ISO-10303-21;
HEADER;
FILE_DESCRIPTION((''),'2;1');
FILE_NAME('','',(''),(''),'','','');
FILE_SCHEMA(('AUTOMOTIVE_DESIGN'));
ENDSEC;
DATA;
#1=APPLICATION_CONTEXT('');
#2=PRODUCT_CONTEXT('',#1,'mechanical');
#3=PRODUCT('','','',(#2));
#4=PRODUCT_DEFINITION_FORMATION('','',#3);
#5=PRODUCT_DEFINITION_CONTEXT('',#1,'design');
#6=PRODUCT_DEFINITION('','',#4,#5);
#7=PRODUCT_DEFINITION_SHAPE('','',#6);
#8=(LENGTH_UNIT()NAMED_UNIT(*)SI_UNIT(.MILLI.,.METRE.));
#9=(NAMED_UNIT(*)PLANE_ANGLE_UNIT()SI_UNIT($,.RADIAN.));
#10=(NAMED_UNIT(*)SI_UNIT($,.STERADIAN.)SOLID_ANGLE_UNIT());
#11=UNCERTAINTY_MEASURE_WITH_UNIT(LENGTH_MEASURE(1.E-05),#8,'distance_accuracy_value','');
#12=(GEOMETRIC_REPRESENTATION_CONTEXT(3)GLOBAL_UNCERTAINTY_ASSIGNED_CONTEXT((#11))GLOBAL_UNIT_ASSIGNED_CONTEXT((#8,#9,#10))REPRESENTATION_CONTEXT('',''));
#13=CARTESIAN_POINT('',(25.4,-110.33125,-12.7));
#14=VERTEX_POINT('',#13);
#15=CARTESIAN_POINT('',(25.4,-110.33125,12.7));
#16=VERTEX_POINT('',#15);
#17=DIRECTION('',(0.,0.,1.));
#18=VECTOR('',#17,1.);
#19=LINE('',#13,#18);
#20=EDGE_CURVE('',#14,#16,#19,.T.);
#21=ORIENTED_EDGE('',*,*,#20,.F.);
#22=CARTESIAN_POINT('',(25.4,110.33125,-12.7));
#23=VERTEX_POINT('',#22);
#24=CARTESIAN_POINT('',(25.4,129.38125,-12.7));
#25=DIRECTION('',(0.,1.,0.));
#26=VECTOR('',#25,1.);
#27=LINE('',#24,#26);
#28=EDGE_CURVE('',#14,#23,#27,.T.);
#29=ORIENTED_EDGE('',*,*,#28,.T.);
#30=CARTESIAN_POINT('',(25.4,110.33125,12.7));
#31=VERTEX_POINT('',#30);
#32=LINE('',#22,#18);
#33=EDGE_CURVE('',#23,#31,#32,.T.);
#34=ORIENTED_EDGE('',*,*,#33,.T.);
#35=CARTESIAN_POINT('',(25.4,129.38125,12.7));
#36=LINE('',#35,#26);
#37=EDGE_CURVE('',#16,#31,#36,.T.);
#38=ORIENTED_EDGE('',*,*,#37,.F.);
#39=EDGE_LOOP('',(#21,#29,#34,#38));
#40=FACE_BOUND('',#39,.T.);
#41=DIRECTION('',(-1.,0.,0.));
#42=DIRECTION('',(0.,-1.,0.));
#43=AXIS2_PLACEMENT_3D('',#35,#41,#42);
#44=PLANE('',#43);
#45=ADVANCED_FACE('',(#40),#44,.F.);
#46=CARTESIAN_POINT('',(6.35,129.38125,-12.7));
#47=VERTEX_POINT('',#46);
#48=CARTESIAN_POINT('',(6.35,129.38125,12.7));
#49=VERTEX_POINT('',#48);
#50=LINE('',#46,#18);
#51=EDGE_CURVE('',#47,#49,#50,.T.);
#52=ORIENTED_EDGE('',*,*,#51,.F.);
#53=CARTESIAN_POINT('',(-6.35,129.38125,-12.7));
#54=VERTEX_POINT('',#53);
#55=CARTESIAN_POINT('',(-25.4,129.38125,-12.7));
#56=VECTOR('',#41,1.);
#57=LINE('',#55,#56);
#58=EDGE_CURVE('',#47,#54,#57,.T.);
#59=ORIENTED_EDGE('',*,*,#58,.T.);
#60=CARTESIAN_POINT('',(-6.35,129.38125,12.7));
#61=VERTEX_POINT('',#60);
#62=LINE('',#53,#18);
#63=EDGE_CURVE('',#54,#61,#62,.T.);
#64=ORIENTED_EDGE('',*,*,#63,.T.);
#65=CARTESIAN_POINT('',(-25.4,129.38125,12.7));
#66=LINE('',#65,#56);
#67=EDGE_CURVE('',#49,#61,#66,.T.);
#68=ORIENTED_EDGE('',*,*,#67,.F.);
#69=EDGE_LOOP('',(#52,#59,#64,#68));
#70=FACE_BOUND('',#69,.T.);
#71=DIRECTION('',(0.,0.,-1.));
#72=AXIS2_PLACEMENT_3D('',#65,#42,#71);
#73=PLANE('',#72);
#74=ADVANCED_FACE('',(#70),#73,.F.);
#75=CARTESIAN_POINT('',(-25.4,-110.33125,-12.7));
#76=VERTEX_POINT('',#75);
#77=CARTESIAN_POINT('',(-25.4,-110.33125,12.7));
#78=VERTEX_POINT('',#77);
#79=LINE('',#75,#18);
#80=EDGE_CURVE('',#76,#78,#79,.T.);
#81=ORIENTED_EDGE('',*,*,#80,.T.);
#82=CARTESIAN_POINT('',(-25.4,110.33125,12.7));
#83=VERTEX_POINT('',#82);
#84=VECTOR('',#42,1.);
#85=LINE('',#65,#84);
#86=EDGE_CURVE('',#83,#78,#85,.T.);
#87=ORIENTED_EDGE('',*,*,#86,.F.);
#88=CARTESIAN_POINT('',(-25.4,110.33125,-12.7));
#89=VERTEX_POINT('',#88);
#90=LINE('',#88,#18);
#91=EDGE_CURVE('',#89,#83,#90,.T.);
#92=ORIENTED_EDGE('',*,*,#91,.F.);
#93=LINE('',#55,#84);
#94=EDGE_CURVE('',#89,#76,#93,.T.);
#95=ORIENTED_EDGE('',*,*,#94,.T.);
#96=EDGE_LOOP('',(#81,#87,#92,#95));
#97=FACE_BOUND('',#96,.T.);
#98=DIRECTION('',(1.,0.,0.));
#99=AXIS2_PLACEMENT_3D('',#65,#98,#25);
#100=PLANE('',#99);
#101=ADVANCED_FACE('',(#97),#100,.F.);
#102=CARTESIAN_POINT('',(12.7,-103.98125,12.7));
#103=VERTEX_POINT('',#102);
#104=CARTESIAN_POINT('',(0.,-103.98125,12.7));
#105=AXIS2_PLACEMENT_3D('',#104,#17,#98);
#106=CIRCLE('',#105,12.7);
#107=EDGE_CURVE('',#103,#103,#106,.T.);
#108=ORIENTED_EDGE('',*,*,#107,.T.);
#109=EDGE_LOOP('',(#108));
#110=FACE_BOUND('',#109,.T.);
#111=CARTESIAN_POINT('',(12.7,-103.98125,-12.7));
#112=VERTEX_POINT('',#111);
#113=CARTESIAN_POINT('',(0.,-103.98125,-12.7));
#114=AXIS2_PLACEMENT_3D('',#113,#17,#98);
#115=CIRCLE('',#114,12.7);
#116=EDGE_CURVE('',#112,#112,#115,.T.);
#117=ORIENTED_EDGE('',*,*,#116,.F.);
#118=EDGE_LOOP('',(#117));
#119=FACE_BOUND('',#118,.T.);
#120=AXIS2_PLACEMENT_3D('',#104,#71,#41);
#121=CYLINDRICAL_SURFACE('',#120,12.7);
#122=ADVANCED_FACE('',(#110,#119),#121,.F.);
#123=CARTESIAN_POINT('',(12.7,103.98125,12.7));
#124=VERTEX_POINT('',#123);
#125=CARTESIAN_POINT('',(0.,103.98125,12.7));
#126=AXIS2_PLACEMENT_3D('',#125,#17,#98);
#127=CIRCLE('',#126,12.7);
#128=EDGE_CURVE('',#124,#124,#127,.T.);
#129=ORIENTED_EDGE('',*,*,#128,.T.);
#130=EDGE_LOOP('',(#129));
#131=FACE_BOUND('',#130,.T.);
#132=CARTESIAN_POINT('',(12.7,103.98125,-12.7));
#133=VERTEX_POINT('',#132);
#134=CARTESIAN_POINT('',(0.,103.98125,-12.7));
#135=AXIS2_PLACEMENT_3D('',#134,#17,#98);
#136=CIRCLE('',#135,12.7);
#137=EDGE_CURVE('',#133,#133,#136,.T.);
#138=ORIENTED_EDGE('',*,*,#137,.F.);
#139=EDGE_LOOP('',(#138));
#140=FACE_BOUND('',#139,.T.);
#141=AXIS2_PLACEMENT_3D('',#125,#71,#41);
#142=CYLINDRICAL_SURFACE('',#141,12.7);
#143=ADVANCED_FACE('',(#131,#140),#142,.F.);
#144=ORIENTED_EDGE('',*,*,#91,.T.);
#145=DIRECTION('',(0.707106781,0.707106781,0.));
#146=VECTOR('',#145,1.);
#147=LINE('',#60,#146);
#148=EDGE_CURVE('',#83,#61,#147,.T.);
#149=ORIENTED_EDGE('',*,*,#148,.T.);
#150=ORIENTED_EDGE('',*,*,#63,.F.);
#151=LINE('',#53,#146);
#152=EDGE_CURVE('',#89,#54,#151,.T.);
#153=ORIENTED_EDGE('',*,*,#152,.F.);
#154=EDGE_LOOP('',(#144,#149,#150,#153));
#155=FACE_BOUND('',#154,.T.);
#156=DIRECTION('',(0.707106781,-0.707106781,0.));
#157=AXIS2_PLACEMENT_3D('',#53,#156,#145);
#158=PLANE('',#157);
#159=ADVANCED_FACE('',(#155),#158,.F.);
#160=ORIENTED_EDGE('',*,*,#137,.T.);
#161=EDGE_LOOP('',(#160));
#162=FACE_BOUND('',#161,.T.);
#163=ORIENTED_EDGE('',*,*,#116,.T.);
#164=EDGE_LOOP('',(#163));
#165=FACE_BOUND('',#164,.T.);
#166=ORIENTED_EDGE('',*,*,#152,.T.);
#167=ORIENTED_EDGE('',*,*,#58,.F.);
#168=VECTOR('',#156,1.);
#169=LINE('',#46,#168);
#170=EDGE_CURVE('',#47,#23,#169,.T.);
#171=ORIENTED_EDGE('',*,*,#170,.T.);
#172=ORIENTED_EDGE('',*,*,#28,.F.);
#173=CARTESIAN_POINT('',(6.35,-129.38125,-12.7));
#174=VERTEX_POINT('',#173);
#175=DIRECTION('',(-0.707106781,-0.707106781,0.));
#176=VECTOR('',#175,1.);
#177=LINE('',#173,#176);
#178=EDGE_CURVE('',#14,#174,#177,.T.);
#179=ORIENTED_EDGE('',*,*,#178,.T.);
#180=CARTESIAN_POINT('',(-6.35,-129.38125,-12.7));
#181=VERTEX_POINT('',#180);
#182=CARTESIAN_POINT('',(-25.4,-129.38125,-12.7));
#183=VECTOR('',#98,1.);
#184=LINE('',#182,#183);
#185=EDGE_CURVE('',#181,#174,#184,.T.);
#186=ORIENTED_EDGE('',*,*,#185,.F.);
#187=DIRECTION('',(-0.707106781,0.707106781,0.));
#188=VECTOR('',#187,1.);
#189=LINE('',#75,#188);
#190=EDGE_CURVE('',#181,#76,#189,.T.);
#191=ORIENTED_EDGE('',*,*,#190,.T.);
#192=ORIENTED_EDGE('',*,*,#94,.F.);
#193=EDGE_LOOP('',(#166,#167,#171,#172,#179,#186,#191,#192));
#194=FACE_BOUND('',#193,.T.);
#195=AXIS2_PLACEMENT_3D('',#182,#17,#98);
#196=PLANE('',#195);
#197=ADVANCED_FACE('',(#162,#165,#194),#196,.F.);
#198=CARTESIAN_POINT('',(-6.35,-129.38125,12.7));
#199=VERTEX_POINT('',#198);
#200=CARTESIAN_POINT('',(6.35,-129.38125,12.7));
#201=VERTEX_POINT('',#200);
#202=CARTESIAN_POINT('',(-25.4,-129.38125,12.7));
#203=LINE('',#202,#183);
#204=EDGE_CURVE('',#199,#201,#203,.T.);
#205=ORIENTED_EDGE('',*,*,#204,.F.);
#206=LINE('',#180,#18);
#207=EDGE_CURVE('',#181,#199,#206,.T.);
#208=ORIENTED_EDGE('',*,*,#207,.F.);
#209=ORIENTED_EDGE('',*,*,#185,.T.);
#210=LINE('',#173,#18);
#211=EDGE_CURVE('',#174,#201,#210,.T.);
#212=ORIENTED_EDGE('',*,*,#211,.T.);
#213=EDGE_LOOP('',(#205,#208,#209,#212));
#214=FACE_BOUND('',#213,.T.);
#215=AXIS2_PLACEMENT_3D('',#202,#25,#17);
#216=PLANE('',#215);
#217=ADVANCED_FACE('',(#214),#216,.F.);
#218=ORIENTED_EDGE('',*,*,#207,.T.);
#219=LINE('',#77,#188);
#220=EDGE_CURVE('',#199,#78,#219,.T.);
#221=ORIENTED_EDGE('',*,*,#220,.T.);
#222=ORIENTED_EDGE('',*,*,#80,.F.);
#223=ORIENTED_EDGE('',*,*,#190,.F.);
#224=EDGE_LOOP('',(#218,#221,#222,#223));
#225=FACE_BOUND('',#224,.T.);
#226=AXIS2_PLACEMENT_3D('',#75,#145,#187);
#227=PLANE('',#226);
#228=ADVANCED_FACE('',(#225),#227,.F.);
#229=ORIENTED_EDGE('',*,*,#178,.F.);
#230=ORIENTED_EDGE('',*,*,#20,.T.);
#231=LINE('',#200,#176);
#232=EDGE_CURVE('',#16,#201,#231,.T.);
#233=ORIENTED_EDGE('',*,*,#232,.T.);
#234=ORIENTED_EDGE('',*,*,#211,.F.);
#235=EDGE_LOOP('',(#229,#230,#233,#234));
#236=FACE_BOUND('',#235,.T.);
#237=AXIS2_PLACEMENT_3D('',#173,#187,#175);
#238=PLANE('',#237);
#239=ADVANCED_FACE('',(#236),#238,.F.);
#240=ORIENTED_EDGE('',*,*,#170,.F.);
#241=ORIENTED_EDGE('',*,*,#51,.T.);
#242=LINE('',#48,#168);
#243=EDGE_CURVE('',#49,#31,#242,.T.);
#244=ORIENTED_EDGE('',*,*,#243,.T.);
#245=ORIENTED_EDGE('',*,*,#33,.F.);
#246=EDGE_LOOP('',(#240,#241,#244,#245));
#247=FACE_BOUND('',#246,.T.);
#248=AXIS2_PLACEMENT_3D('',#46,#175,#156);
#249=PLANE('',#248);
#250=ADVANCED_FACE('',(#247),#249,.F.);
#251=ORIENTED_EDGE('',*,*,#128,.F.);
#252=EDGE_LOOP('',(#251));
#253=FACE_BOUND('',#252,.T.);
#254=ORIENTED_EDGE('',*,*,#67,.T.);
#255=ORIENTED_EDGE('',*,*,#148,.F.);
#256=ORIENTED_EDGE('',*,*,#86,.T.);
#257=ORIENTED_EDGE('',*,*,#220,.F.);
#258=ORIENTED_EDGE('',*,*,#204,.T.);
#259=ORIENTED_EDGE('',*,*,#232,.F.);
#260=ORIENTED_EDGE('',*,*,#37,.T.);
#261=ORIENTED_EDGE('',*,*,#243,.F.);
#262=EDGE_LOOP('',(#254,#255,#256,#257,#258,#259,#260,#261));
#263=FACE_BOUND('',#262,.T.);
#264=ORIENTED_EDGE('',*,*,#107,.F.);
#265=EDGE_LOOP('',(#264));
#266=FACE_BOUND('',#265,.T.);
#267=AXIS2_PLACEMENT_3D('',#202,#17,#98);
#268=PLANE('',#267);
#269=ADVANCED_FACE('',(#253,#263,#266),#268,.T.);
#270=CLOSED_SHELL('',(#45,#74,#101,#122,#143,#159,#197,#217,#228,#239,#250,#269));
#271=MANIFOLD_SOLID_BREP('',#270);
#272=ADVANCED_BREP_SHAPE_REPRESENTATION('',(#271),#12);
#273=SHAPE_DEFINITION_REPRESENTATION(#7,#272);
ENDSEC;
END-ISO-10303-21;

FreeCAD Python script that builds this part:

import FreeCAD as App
import Part
import Sketcher
Q = App.Units.Quantity


def add_polygon(sketch, points):
    """Adds a closed chain of lines whose ends are joined by coincident constraints."""
    first, n = sketch.GeometryCount, len(points)
    for a, b in zip(points, points[1:] + points[:1]):
        sketch.addGeometry(Part.LineSegment(App.Vector(*a, 0), App.Vector(*b, 0)), False)
    for i in range(n):
        sketch.addConstraint(Sketcher.Constraint("Coincident", first + i, 2, first + (i + 1) % n, 1))

doc = App.newDocument("Part")
body = doc.addObject("PartDesign::Body", "Body")

# Sketch on XY plane
sketch1 = body.newObject("Sketcher::SketchObject", "Sketch")
sketch1.AttachmentSupport = (doc.getObject("XY_Plane"), [""])
sketch1.MapMode = "FlatFace"
add_polygon(sketch1, [(-25, 129), (-25, -129), (25, -129), (25, 129)])  # lines 0-3
sketch1.addGeometry(Part.Circle(App.Vector(0, -104, 0), App.Vector(0, 0, 1), 13), False)  # 4
sketch1.addGeometry(Part.Circle(App.Vector(0, 104, 0), App.Vector(0, 0, 1), 13), False)  # 5
sketch1.addConstraint([
    Sketcher.Constraint("Vertical", 0),
    Sketcher.Constraint("Horizontal", 1),
    Sketcher.Constraint("Vertical", 2),
    Sketcher.Constraint("Horizontal", 3),
    Sketcher.Constraint("Equal", 4, 5),
    Sketcher.Constraint("Symmetric", 4, 3, 5, 3, -1, 1),
    Sketcher.Constraint("Symmetric", 0, 2, 2, 2, -1, 1),
    Sketcher.Constraint("PointOnObject", 4, 3, -2),
    Sketcher.Constraint("Diameter", 4, Q("1 in")),
    Sketcher.Constraint("DistanceX", 1, 1, 1, 2, Q("2 in")),
    Sketcher.Constraint("DistanceY", 0, 2, 4, 3, Q("1 in")),
    Sketcher.Constraint("DistanceY", 0, 2, 0, 1, Q("10.1875 in")),
])
pad1 = body.newObject("PartDesign::Pad", "Pad")
pad1.Profile = sketch1
pad1.Length = Q("1 in")
pad1.Midplane = True

# Sketch on XY plane
sketch2 = body.newObject("Sketcher::SketchObject", "Sketch001")
sketch2.AttachmentSupport = (doc.getObject("XY_Plane"), [""])
sketch2.MapMode = "FlatFace"
sketch2.AttachmentOffset = App.Placement(App.Vector(0, 0, 0.5 * 25.4), App.Rotation())
add_polygon(sketch2, [(-25, 110), (-6, 129), (-25, 129)])  # lines 0-2
add_polygon(sketch2, [(6, 129), (25, 110), (25, 129)])  # lines 3-5
add_polygon(sketch2, [(-6, -129), (-25, -110), (-25, -129)])  # lines 6-8
add_polygon(sketch2, [(25, -129), (25, -110), (6, -129)])  # lines 9-11
sketch2.addConstraint([
    Sketcher.Constraint("Horizontal", 1),
    Sketcher.Constraint("Vertical", 2),
    Sketcher.Constraint("Vertical", 4),
    Sketcher.Constraint("Horizontal", 5),
    Sketcher.Constraint("Vertical", 7),
    Sketcher.Constraint("Horizontal", 8),
    Sketcher.Constraint("Vertical", 9),
    Sketcher.Constraint("Horizontal", 11),
    Sketcher.Constraint("Symmetric", 3, 2, 6, 2, -1, 1),
    Sketcher.Constraint("Symmetric", 5, 2, 8, 2, -1, 1),
    Sketcher.Constraint("Symmetric", 2, 2, 9, 2, -1, 1),
    Sketcher.Constraint("Symmetric", 0, 2, 10, 2, -1, 1),
    Sketcher.Constraint("Symmetric", 2, 2, 3, 2, -2),
    Sketcher.Constraint("Symmetric", 0, 2, 5, 2, -2),
    Sketcher.Constraint("Perpendicular", 0, 3),
    Sketcher.Constraint("DistanceX", 1, 2, -1, 1, Q("1 in")),
    Sketcher.Constraint("DistanceX", 1, 2, 1, 1, Q("0.75 in")),
    Sketcher.Constraint("DistanceY", -1, 1, 0, 2, Q("5.09375 in")),
])
pocket1 = body.newObject("PartDesign::Pocket", "Pocket")
pocket1.Profile = sketch2
pocket1.Type = "ThroughAll"

doc.recompute()
